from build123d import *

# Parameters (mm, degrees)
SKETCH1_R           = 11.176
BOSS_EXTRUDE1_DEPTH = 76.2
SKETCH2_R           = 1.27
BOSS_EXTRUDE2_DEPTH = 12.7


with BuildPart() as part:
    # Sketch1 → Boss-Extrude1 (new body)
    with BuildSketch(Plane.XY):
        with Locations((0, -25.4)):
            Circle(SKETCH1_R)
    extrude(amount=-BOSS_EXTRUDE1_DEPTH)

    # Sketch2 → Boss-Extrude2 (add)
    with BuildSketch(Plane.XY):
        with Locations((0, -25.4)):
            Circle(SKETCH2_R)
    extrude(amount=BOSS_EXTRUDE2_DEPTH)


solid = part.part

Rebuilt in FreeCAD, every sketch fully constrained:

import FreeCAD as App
import Part
import Sketcher

V = App.Vector
Q = App.Units.Quantity

doc = App.newDocument("Part")
body = doc.addObject("PartDesign::Body", "Body")

# Sketch on XY plane
sketch1 = body.newObject("Sketcher::SketchObject", "Sketch")
sketch1.AttachmentSupport = (doc.getObject("XY_Plane"), [""])
sketch1.MapMode = "FlatFace"
sketch1.addGeometry(Part.Circle(V(0, -25.4, 0), V(0, 0, 1), 11.176), False)
sketch1.addConstraint(Sketcher.Constraint("PointOnObject", 0, 3, -2))
sketch1.addConstraint(Sketcher.Constraint("Diameter", 0, Q("0.88 in")))
sketch1.addConstraint(Sketcher.Constraint("DistanceY", 0, 3, -1, 1, Q("1 in")))
pad1 = body.newObject("PartDesign::Pad", "Pad")
pad1.Profile = sketch1
pad1.Length = Q("3 in")
pad1.Reversed = True

# Sketch on XY plane
sketch2 = body.newObject("Sketcher::SketchObject", "Sketch001")
sketch2.AttachmentSupport = (doc.getObject("XY_Plane"), [""])
sketch2.MapMode = "FlatFace"
sketch2.addGeometry(Part.Circle(V(0, -25.4, 0), V(0, 0, 1), 1.27), False)
sketch2.addConstraint(Sketcher.Constraint("PointOnObject", 0, 3, -2))
sketch2.addConstraint(Sketcher.Constraint("Diameter", 0, Q("0.1 in")))
sketch2.addConstraint(Sketcher.Constraint("DistanceY", 0, 3, -1, 1, Q("1 in")))
pad2 = body.newObject("PartDesign::Pad", "Pad001")
pad2.Profile = sketch2
pad2.Length = Q("0.5 in")

doc.recompute()
